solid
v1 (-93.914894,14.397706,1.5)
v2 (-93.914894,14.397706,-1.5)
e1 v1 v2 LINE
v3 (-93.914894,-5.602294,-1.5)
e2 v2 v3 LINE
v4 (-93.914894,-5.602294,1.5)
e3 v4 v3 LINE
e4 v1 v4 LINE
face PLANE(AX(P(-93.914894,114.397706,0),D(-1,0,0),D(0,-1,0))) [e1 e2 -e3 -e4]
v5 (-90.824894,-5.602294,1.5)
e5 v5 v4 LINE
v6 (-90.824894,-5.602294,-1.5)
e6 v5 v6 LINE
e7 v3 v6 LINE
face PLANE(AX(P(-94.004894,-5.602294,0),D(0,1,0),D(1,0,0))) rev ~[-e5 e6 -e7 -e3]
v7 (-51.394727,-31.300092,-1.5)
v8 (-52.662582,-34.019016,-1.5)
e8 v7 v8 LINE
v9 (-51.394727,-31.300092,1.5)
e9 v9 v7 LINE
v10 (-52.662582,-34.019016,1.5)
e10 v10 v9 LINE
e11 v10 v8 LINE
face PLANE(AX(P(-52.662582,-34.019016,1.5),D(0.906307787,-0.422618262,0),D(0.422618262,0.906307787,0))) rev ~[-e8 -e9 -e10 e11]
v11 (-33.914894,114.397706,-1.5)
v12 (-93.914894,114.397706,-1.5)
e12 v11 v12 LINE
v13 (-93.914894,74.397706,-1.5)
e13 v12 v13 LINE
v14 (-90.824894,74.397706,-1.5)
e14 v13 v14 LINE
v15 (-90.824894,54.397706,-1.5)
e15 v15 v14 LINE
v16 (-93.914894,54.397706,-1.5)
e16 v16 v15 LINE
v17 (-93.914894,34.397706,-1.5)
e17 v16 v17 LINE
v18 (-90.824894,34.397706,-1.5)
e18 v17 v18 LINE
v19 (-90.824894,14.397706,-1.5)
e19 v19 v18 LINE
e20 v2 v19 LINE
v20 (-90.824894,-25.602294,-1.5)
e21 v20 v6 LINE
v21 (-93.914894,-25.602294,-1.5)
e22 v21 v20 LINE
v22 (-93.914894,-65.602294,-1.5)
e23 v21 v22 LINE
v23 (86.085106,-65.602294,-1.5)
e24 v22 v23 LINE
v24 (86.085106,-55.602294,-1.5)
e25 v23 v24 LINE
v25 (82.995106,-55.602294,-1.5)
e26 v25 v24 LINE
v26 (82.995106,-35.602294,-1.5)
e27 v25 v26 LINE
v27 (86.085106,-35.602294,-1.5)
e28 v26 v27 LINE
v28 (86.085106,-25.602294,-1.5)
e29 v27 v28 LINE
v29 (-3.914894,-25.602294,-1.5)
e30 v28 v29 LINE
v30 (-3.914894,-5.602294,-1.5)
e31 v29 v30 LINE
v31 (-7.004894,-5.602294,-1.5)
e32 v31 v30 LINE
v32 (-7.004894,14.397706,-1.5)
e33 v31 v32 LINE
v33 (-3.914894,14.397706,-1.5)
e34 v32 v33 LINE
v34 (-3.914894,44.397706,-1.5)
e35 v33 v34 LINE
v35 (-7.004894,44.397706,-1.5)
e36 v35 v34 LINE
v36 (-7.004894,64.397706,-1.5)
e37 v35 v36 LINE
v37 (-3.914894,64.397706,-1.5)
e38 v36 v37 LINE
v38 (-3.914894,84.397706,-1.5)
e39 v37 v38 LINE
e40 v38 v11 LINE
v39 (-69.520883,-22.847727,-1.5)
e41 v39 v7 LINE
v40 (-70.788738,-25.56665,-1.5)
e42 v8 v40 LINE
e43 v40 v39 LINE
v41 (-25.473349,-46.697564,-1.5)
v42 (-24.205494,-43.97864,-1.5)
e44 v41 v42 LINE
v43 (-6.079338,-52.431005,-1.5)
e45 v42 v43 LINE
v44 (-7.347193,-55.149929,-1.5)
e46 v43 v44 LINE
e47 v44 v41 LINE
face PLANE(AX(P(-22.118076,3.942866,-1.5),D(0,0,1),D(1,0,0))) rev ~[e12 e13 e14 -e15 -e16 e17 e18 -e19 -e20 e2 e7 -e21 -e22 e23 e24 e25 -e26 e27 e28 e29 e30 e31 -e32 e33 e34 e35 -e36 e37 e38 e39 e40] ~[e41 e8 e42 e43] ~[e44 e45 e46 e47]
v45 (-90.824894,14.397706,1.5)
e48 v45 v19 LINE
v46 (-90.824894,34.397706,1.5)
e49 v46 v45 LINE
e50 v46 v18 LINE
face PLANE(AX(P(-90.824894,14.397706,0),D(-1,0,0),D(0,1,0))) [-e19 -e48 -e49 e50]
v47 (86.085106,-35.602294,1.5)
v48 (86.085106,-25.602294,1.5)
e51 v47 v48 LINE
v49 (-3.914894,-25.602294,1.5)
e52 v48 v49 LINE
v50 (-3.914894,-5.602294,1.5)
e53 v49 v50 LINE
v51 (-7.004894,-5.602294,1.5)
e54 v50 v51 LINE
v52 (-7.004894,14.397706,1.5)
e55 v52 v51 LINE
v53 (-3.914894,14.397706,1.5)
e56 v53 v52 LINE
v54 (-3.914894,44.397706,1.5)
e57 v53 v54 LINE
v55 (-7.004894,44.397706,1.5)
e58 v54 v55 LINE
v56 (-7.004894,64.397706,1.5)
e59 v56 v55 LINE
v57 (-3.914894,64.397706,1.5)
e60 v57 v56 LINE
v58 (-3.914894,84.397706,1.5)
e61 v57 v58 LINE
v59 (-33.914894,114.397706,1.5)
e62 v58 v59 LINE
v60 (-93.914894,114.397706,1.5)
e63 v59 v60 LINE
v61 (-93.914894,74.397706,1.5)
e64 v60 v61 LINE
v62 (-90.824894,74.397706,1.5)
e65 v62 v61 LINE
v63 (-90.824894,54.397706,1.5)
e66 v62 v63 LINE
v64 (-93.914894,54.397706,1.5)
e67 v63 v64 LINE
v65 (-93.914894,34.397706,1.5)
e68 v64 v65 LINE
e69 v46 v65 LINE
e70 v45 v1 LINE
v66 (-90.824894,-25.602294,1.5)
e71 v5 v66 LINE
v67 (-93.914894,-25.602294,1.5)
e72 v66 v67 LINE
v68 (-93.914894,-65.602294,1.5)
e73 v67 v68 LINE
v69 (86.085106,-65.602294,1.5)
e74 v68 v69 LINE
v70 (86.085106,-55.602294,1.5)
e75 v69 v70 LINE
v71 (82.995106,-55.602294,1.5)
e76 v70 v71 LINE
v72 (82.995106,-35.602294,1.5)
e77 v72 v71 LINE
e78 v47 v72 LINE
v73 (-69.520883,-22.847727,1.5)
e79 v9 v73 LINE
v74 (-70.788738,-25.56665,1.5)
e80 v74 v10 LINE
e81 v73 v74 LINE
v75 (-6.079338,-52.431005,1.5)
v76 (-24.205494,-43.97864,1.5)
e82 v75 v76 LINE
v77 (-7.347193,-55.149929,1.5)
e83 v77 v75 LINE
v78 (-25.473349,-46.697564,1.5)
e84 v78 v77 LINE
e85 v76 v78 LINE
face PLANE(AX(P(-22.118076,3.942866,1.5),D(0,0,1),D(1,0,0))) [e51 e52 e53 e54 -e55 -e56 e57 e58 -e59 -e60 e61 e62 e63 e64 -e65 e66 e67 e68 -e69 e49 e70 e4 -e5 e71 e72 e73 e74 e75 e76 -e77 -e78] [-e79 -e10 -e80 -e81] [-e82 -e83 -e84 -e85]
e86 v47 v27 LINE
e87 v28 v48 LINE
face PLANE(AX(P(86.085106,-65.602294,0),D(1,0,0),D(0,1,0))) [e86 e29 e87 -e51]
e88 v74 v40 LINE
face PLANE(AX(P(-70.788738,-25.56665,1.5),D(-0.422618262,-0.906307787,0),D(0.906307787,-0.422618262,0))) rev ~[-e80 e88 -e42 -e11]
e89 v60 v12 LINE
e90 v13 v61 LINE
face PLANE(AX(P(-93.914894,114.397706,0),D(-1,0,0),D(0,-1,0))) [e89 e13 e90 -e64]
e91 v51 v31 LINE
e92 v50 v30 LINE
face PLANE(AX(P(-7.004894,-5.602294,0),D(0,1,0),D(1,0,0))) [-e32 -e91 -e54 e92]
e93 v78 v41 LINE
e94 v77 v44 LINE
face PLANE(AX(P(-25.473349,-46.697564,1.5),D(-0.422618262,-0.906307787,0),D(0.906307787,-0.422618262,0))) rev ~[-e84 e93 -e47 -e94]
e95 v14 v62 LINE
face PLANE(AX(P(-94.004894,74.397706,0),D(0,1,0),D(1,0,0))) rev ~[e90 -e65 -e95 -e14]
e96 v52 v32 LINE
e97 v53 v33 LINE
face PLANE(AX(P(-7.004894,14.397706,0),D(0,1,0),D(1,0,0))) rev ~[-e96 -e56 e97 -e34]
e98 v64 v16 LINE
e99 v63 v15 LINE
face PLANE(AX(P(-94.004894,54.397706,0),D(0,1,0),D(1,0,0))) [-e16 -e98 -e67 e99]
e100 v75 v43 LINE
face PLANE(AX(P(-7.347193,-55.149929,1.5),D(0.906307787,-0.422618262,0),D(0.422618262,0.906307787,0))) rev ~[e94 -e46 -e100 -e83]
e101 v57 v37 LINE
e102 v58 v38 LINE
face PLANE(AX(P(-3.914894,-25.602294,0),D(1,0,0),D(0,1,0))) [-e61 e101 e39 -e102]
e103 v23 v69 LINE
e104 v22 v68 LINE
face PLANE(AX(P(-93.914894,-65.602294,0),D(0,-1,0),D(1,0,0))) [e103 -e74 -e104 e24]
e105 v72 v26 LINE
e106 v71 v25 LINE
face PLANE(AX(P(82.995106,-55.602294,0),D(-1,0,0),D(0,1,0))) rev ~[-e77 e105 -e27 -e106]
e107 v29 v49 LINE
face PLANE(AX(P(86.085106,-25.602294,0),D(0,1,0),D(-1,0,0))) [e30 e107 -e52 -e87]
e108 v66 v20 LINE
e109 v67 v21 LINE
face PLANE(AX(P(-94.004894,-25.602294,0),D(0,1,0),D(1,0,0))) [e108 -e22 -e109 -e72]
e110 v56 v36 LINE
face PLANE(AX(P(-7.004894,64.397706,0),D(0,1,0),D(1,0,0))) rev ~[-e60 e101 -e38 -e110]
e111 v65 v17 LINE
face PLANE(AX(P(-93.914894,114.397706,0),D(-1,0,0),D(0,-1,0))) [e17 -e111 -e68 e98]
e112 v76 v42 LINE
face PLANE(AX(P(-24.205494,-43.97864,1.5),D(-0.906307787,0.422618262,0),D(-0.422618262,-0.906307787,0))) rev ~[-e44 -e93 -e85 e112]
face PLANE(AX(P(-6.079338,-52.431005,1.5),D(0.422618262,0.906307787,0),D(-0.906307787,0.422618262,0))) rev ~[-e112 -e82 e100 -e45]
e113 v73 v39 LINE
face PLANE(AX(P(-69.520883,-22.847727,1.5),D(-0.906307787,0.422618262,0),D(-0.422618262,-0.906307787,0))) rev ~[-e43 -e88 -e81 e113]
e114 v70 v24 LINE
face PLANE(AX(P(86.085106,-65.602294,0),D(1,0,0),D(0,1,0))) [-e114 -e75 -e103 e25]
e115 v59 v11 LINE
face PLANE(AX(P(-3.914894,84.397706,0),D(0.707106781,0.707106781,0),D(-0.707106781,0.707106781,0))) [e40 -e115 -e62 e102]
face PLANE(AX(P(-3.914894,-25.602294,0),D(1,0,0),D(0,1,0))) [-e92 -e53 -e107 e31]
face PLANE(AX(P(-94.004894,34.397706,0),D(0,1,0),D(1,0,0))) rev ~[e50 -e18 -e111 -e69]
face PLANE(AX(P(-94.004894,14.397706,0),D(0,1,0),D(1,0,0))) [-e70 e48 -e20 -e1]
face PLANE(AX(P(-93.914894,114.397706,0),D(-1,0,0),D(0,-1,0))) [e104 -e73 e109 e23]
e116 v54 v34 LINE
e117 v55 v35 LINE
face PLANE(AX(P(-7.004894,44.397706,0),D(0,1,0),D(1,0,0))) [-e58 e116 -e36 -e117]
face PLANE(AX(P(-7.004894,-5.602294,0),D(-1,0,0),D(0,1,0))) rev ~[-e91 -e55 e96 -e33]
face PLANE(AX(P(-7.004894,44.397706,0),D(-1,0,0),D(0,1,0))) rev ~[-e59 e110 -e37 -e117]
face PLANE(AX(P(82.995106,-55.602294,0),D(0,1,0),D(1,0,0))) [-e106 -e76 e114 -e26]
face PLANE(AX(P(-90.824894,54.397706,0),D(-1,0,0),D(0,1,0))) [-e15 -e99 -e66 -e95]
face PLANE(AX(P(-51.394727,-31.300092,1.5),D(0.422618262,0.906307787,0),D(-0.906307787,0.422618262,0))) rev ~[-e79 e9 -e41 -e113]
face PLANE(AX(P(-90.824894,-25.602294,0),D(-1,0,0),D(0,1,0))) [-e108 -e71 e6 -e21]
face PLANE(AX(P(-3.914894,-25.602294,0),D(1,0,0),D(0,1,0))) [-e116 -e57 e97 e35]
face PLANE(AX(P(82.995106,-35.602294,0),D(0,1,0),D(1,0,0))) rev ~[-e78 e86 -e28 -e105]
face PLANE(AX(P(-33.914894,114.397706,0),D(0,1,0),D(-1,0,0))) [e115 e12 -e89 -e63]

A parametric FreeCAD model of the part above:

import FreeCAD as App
import Part
import Sketcher
from FreeCAD import Vector
Q = App.Units.Quantity

doc = App.newDocument("Part")
params = doc.addObject("Spreadsheet::Sheet", "Params")
for row, (alias, value) in enumerate([
    ("sketch1_width", "180 mm"),
    ("sketch1_width2", "90 mm"),
    ("sketch1_width3", "60 mm"),
    ("sketch1_height", "40 mm"),
    ("sketch1_height2", "110 mm"),
    ("pad1_length", "3 mm"),
    ("sketch2_height", "20 mm"),
    ("sketch2_width", "3.18 mm"),
    ("sketch3_length", "20 mm"),
    ("sketch3_length2", "3 mm"),
    ("sketch4_length", "20 mm"),
    ("sketch4_length2", "3 mm"),
], start=1):
    params.set(f"A{row}", alias)
    params.set(f"B{row}", "=" + value)
    params.setAlias(f"B{row}", alias)

body = doc.addObject("PartDesign::Body", "Body")

# Sketch on XY plane
sketch1 = body.newObject("Sketcher::SketchObject", "Sketch")
sketch1.AttachmentSupport = (doc.getObject("XY_Plane"), [""])
sketch1.MapMode = "FlatFace"
sketch1.addGeometry([
    Part.LineSegment(Vector(-94, 114, 0), Vector(-94, -66, 0)),  # 0
    Part.LineSegment(Vector(-94, -66, 0), Vector(86, -66, 0)),  # 1
    Part.LineSegment(Vector(86, -66, 0), Vector(86, -26, 0)),  # 2
    Part.LineSegment(Vector(86, -26, 0), Vector(-4, -26, 0)),  # 3
    Part.LineSegment(Vector(-4, -26, 0), Vector(-4, 84, 0)),  # 4
    Part.LineSegment(Vector(-4, 84, 0), Vector(-34, 114, 0)),  # 5
    Part.LineSegment(Vector(-34, 114, 0), Vector(-94, 114, 0)),  # 6
], False)
sketch1.addConstraint([
    Sketcher.Constraint("Coincident", 0, 2, 1, 1),
    Sketcher.Constraint("Coincident", 1, 2, 2, 1),
    Sketcher.Constraint("Coincident", 2, 2, 3, 1),
    Sketcher.Constraint("Coincident", 3, 2, 4, 1),
    Sketcher.Constraint("Coincident", 4, 2, 5, 1),
    Sketcher.Constraint("Coincident", 5, 2, 6, 1),
    Sketcher.Constraint("Coincident", 6, 2, 0, 1),
    Sketcher.Constraint("Vertical", 0),
    Sketcher.Constraint("Horizontal", 1),
    Sketcher.Constraint("Vertical", 2),
    Sketcher.Constraint("Horizontal", 3),
    Sketcher.Constraint("Vertical", 4),
    Sketcher.Constraint("Horizontal", 6),
    Sketcher.Constraint("Equal", 1, 0),
    Sketcher.Constraint("DistanceX", 1, 1, 1, 2, Q("180 mm")),
    Sketcher.Constraint("DistanceX", 3, 2, 3, 1, Q("90 mm")),
    Sketcher.Constraint("DistanceX", 6, 2, 6, 1, Q("60 mm")),
    Sketcher.Constraint("DistanceY", 2, 1, 2, 2, Q("40 mm")),
    Sketcher.Constraint("DistanceY", 4, 1, 4, 2, Q("110 mm")),
    Sketcher.Constraint("DistanceX", 0, 2, -1, 1, Q("93.914894 mm")),
    Sketcher.Constraint("DistanceY", 0, 2, -1, 1, Q("65.602294 mm")),
])
sketch1.setExpression("Constraints[14]", "Params.sketch1_width")
sketch1.setExpression("Constraints[15]", "Params.sketch1_width2")
sketch1.setExpression("Constraints[16]", "Params.sketch1_width3")
sketch1.setExpression("Constraints[17]", "Params.sketch1_height")
sketch1.setExpression("Constraints[18]", "Params.sketch1_height2")
pad1 = body.newObject("PartDesign::Pad", "Pad")
pad1.Profile = sketch1
pad1.setExpression("Length", "Params.pad1_length")
pad1.Midplane = True

# Sketch on XY plane
sketch2 = body.newObject("Sketcher::SketchObject", "Sketch001")
sketch2.AttachmentSupport = (doc.getObject("XY_Plane"), [""])
sketch2.MapMode = "FlatFace"
sketch2.addGeometry([
    Part.LineSegment(Vector(-94, 74.4, 0), Vector(-94, 54.4, 0)),  # 0
    Part.LineSegment(Vector(-94, 54.4, 0), Vector(-90.8, 54.4, 0)),  # 1
    Part.LineSegment(Vector(-90.8, 54.4, 0), Vector(-90.8, 74.4, 0)),  # 2
    Part.LineSegment(Vector(-90.8, 74.4, 0), Vector(-94, 74.4, 0)),  # 3
    Part.LineSegment(Vector(-94, 34.4, 0), Vector(-94, 14.4, 0)),  # 4
    Part.LineSegment(Vector(-94, 14.4, 0), Vector(-90.8, 14.4, 0)),  # 5
    Part.LineSegment(Vector(-90.8, 14.4, 0), Vector(-90.8, 34.4, 0)),  # 6
    Part.LineSegment(Vector(-90.8, 34.4, 0), Vector(-94, 34.4, 0)),  # 7
    Part.LineSegment(Vector(-94, -5.6, 0), Vector(-94, -25.6, 0)),  # 8
    Part.LineSegment(Vector(-94, -25.6, 0), Vector(-90.8, -25.6, 0)),  # 9
    Part.LineSegment(Vector(-90.8, -25.6, 0), Vector(-90.8, -5.6, 0)),  # 10
    Part.LineSegment(Vector(-90.8, -5.6, 0), Vector(-94, -5.6, 0)),  # 11
    Part.LineSegment(Vector(-7, 64.4, 0), Vector(-7, 44.4, 0)),  # 12
    Part.LineSegment(Vector(-7, 44.4, 0), Vector(-3.8, 44.4, 0)),  # 13
    Part.LineSegment(Vector(-3.8, 44.4, 0), Vector(-3.8, 64.4, 0)),  # 14
    Part.LineSegment(Vector(-3.8, 64.4, 0), Vector(-7, 64.4, 0)),  # 15
    Part.LineSegment(Vector(-7, 14.4, 0), Vector(-7, -5.6, 0)),  # 16
    Part.LineSegment(Vector(-7, -5.6, 0), Vector(-3.8, -5.6, 0)),  # 17
    Part.LineSegment(Vector(-3.8, -5.6, 0), Vector(-3.8, 14.4, 0)),  # 18
    Part.LineSegment(Vector(-3.8, 14.4, 0), Vector(-7, 14.4, 0)),  # 19
    Part.LineSegment(Vector(83, -35.6, 0), Vector(83, -55.6, 0)),  # 20
    Part.LineSegment(Vector(83, -55.6, 0), Vector(86.2, -55.6, 0)),  # 21
    Part.LineSegment(Vector(86.2, -55.6, 0), Vector(86.2, -35.6, 0)),  # 22
    Part.LineSegment(Vector(86.2, -35.6, 0), Vector(83, -35.6, 0)),  # 23
], False)
sketch2.addConstraint([
    Sketcher.Constraint("Coincident", 0, 2, 1, 1),
    Sketcher.Constraint("Coincident", 1, 2, 2, 1),
    Sketcher.Constraint("Coincident", 2, 2, 3, 1),
    Sketcher.Constraint("Coincident", 3, 2, 0, 1),
    Sketcher.Constraint("Coincident", 4, 2, 5, 1),
    Sketcher.Constraint("Coincident", 5, 2, 6, 1),
    Sketcher.Constraint("Coincident", 6, 2, 7, 1),
    Sketcher.Constraint("Coincident", 7, 2, 4, 1),
    Sketcher.Constraint("Coincident", 8, 2, 9, 1),
    Sketcher.Constraint("Coincident", 9, 2, 10, 1),
    Sketcher.Constraint("Coincident", 10, 2, 11, 1),
    Sketcher.Constraint("Coincident", 11, 2, 8, 1),
    Sketcher.Constraint("Coincident", 12, 2, 13, 1),
    Sketcher.Constraint("Coincident", 13, 2, 14, 1),
    Sketcher.Constraint("Coincident", 14, 2, 15, 1),
    Sketcher.Constraint("Coincident", 15, 2, 12, 1),
    Sketcher.Constraint("Coincident", 16, 2, 17, 1),
    Sketcher.Constraint("Coincident", 17, 2, 18, 1),
    Sketcher.Constraint("Coincident", 18, 2, 19, 1),
    Sketcher.Constraint("Coincident", 19, 2, 16, 1),
    Sketcher.Constraint("Coincident", 20, 2, 21, 1),
    Sketcher.Constraint("Coincident", 21, 2, 22, 1),
    Sketcher.Constraint("Coincident", 22, 2, 23, 1),
    Sketcher.Constraint("Coincident", 23, 2, 20, 1),
    Sketcher.Constraint("Vertical", 0),
    Sketcher.Constraint("Horizontal", 1),
    Sketcher.Constraint("Vertical", 2),
    Sketcher.Constraint("Horizontal", 3),
    Sketcher.Constraint("Vertical", 4),
    Sketcher.Constraint("Horizontal", 5),
    Sketcher.Constraint("Vertical", 6),
    Sketcher.Constraint("Horizontal", 7),
    Sketcher.Constraint("Vertical", 8),
    Sketcher.Constraint("Horizontal", 9),
    Sketcher.Constraint("Vertical", 10),
    Sketcher.Constraint("Horizontal", 11),
    Sketcher.Constraint("Vertical", 12),
    Sketcher.Constraint("Horizontal", 13),
    Sketcher.Constraint("Vertical", 14),
    Sketcher.Constraint("Horizontal", 15),
    Sketcher.Constraint("Vertical", 16),
    Sketcher.Constraint("Horizontal", 17),
    Sketcher.Constraint("Vertical", 18),
    Sketcher.Constraint("Horizontal", 19),
    Sketcher.Constraint("Vertical", 20),
    Sketcher.Constraint("Horizontal", 21),
    Sketcher.Constraint("Vertical", 22),
    Sketcher.Constraint("Horizontal", 23),
    Sketcher.Constraint("Horizontal", 11, 2, 16, 2),
    Sketcher.Constraint("Horizontal", 5, 2, 18, 2),
    Sketcher.Constraint("Vertical", 3, 2, 4, 2),
    Sketcher.Constraint("Vertical", 2, 2, 5, 2),
    Sketcher.Constraint("Vertical", 7, 2, 8, 2),
    Sketcher.Constraint("Vertical", 6, 2, 9, 2),
    Sketcher.Constraint("Vertical", 15, 2, 16, 2),
    Sketcher.Constraint("Vertical", 14, 2, 17, 2),
    Sketcher.Constraint("Equal", 11, 13),
    Sketcher.Constraint("Equal", 19, 21),
    Sketcher.Constraint("Equal", 2, 4),
    Sketcher.Constraint("Equal", 6, 8),
    Sketcher.Constraint("Equal", 10, 12),
    Sketcher.Constraint("Equal", 14, 16),
    Sketcher.Constraint("Equal", 18, 20),
    Sketcher.Constraint("DistanceY", 0, 2, 0, 1, Q("20 mm")),
    Sketcher.Constraint("DistanceY", 4, 2, 0, 2, Q("40 mm")),
    Sketcher.Constraint("DistanceY", 12, 2, 1, 2, Q("10 mm")),
    Sketcher.Constraint("DistanceX", 0, 2, 12, 2, Q("87 mm")),
    Sketcher.Constraint("DistanceY", 20, 2, 17, 2, Q("50 mm")),
    Sketcher.Constraint("DistanceX", 16, 2, 20, 2, Q("90 mm")),
    Sketcher.Constraint("DistanceX", 1, 1, 1, 2, Q("3.18 mm")),
    Sketcher.Constraint("DistanceX", 0, 2, -1, 1, Q("94.004894 mm")),
    Sketcher.Constraint("DistanceY", -1, 1, 0, 2, Q("54.397706 mm")),
])
sketch2.setExpression("Constraints[63]", "Params.sketch2_height")
sketch2.setExpression("Constraints[69]", "Params.sketch2_width")
pocket1 = body.newObject("PartDesign::Pocket", "Pocket")
pocket1.Profile = sketch2
pocket1.Type = "ThroughAll"
pocket1.Midplane = True

# Sketch on XY plane
sketch3 = body.newObject("Sketcher::SketchObject", "Sketch002")
sketch3.AttachmentSupport = (doc.getObject("XY_Plane"), [""])
sketch3.MapMode = "FlatFace"
sketch3.AttachmentOffset = App.Placement(Vector(0, 0, 1.5), App.Rotation())
sketch3.addGeometry([
    Part.LineSegment(Vector(-25.5, -46.7, 0), Vector(-7.3, -55.1, 0)),
    Part.LineSegment(Vector(-7.3, -55.1, 0), Vector(-6.1, -52.4, 0)),
    Part.LineSegment(Vector(-6.1, -52.4, 0), Vector(-24.2, -44, 0)),
    Part.LineSegment(Vector(-24.2, -44, 0), Vector(-25.5, -46.7, 0)),
], False)
sketch3.addConstraint([
    Sketcher.Constraint("Coincident", 0, 2, 1, 1),
    Sketcher.Constraint("Coincident", 1, 2, 2, 1),
    Sketcher.Constraint("Coincident", 2, 2, 3, 1),
    Sketcher.Constraint("Coincident", 3, 2, 0, 1),
    Sketcher.Constraint("Perpendicular", 0, 1),
    Sketcher.Constraint("Perpendicular", 1, 2),
    Sketcher.Constraint("Perpendicular", 2, 3),
    Sketcher.Constraint("Angle", 0, Q("-25 deg")),
    Sketcher.Constraint("Distance", 0, Q("20 mm")),
    Sketcher.Constraint("Distance", 1, Q("3 mm")),
    Sketcher.Constraint("DistanceY", 0, 2, -1, 1, Q("55.149929 mm")),
    Sketcher.Constraint("DistanceX", 3, 2, -1, 1, Q("25.473349 mm")),
])
sketch3.setExpression("Constraints[8]", "Params.sketch3_length")
sketch3.setExpression("Constraints[9]", "Params.sketch3_length2")
pocket2 = body.newObject("PartDesign::Pocket", "Pocket001")
pocket2.Profile = sketch3
pocket2.Type = "UpToFirst"

# Sketch on XY plane
sketch4 = body.newObject("Sketcher::SketchObject", "Sketch003")
sketch4.AttachmentSupport = (doc.getObject("XY_Plane"), [""])
sketch4.MapMode = "FlatFace"
sketch4.AttachmentOffset = App.Placement(Vector(0, 0, 1.5), App.Rotation())
sketch4.addGeometry([
    Part.LineSegment(Vector(-51.4, -31.3, 0), Vector(-69.5, -22.8, 0)),
    Part.LineSegment(Vector(-69.5, -22.8, 0), Vector(-70.8, -25.6, 0)),
    Part.LineSegment(Vector(-70.8, -25.6, 0), Vector(-52.7, -34, 0)),
    Part.LineSegment(Vector(-52.7, -34, 0), Vector(-51.4, -31.3, 0)),
], False)
sketch4.addConstraint([
    Sketcher.Constraint("Coincident", 0, 2, 1, 1),
    Sketcher.Constraint("Coincident", 1, 2, 2, 1),
    Sketcher.Constraint("Coincident", 2, 2, 3, 1),
    Sketcher.Constraint("Coincident", 3, 2, 0, 1),
    Sketcher.Constraint("Perpendicular", 0, 1),
    Sketcher.Constraint("Perpendicular", 1, 2),
    Sketcher.Constraint("Perpendicular", 2, 3),
    Sketcher.Constraint("Angle", 0, Q("155 deg")),
    Sketcher.Constraint("Distance", 0, Q("20 mm")),
    Sketcher.Constraint("Distance", 1, Q("3 mm")),
    Sketcher.Constraint("DistanceY", 1, 2, -1, 1, Q("25.56665 mm")),
    Sketcher.Constraint("DistanceX", 0, 2, -1, 1, Q("69.520883 mm")),
])
sketch4.setExpression("Constraints[8]", "Params.sketch4_length")
sketch4.setExpression("Constraints[9]", "Params.sketch4_length2")
pocket3 = body.newObject("PartDesign::Pocket", "Pocket002")
pocket3.Profile = sketch4
pocket3.Type = "UpToFirst"

doc.recompute()
